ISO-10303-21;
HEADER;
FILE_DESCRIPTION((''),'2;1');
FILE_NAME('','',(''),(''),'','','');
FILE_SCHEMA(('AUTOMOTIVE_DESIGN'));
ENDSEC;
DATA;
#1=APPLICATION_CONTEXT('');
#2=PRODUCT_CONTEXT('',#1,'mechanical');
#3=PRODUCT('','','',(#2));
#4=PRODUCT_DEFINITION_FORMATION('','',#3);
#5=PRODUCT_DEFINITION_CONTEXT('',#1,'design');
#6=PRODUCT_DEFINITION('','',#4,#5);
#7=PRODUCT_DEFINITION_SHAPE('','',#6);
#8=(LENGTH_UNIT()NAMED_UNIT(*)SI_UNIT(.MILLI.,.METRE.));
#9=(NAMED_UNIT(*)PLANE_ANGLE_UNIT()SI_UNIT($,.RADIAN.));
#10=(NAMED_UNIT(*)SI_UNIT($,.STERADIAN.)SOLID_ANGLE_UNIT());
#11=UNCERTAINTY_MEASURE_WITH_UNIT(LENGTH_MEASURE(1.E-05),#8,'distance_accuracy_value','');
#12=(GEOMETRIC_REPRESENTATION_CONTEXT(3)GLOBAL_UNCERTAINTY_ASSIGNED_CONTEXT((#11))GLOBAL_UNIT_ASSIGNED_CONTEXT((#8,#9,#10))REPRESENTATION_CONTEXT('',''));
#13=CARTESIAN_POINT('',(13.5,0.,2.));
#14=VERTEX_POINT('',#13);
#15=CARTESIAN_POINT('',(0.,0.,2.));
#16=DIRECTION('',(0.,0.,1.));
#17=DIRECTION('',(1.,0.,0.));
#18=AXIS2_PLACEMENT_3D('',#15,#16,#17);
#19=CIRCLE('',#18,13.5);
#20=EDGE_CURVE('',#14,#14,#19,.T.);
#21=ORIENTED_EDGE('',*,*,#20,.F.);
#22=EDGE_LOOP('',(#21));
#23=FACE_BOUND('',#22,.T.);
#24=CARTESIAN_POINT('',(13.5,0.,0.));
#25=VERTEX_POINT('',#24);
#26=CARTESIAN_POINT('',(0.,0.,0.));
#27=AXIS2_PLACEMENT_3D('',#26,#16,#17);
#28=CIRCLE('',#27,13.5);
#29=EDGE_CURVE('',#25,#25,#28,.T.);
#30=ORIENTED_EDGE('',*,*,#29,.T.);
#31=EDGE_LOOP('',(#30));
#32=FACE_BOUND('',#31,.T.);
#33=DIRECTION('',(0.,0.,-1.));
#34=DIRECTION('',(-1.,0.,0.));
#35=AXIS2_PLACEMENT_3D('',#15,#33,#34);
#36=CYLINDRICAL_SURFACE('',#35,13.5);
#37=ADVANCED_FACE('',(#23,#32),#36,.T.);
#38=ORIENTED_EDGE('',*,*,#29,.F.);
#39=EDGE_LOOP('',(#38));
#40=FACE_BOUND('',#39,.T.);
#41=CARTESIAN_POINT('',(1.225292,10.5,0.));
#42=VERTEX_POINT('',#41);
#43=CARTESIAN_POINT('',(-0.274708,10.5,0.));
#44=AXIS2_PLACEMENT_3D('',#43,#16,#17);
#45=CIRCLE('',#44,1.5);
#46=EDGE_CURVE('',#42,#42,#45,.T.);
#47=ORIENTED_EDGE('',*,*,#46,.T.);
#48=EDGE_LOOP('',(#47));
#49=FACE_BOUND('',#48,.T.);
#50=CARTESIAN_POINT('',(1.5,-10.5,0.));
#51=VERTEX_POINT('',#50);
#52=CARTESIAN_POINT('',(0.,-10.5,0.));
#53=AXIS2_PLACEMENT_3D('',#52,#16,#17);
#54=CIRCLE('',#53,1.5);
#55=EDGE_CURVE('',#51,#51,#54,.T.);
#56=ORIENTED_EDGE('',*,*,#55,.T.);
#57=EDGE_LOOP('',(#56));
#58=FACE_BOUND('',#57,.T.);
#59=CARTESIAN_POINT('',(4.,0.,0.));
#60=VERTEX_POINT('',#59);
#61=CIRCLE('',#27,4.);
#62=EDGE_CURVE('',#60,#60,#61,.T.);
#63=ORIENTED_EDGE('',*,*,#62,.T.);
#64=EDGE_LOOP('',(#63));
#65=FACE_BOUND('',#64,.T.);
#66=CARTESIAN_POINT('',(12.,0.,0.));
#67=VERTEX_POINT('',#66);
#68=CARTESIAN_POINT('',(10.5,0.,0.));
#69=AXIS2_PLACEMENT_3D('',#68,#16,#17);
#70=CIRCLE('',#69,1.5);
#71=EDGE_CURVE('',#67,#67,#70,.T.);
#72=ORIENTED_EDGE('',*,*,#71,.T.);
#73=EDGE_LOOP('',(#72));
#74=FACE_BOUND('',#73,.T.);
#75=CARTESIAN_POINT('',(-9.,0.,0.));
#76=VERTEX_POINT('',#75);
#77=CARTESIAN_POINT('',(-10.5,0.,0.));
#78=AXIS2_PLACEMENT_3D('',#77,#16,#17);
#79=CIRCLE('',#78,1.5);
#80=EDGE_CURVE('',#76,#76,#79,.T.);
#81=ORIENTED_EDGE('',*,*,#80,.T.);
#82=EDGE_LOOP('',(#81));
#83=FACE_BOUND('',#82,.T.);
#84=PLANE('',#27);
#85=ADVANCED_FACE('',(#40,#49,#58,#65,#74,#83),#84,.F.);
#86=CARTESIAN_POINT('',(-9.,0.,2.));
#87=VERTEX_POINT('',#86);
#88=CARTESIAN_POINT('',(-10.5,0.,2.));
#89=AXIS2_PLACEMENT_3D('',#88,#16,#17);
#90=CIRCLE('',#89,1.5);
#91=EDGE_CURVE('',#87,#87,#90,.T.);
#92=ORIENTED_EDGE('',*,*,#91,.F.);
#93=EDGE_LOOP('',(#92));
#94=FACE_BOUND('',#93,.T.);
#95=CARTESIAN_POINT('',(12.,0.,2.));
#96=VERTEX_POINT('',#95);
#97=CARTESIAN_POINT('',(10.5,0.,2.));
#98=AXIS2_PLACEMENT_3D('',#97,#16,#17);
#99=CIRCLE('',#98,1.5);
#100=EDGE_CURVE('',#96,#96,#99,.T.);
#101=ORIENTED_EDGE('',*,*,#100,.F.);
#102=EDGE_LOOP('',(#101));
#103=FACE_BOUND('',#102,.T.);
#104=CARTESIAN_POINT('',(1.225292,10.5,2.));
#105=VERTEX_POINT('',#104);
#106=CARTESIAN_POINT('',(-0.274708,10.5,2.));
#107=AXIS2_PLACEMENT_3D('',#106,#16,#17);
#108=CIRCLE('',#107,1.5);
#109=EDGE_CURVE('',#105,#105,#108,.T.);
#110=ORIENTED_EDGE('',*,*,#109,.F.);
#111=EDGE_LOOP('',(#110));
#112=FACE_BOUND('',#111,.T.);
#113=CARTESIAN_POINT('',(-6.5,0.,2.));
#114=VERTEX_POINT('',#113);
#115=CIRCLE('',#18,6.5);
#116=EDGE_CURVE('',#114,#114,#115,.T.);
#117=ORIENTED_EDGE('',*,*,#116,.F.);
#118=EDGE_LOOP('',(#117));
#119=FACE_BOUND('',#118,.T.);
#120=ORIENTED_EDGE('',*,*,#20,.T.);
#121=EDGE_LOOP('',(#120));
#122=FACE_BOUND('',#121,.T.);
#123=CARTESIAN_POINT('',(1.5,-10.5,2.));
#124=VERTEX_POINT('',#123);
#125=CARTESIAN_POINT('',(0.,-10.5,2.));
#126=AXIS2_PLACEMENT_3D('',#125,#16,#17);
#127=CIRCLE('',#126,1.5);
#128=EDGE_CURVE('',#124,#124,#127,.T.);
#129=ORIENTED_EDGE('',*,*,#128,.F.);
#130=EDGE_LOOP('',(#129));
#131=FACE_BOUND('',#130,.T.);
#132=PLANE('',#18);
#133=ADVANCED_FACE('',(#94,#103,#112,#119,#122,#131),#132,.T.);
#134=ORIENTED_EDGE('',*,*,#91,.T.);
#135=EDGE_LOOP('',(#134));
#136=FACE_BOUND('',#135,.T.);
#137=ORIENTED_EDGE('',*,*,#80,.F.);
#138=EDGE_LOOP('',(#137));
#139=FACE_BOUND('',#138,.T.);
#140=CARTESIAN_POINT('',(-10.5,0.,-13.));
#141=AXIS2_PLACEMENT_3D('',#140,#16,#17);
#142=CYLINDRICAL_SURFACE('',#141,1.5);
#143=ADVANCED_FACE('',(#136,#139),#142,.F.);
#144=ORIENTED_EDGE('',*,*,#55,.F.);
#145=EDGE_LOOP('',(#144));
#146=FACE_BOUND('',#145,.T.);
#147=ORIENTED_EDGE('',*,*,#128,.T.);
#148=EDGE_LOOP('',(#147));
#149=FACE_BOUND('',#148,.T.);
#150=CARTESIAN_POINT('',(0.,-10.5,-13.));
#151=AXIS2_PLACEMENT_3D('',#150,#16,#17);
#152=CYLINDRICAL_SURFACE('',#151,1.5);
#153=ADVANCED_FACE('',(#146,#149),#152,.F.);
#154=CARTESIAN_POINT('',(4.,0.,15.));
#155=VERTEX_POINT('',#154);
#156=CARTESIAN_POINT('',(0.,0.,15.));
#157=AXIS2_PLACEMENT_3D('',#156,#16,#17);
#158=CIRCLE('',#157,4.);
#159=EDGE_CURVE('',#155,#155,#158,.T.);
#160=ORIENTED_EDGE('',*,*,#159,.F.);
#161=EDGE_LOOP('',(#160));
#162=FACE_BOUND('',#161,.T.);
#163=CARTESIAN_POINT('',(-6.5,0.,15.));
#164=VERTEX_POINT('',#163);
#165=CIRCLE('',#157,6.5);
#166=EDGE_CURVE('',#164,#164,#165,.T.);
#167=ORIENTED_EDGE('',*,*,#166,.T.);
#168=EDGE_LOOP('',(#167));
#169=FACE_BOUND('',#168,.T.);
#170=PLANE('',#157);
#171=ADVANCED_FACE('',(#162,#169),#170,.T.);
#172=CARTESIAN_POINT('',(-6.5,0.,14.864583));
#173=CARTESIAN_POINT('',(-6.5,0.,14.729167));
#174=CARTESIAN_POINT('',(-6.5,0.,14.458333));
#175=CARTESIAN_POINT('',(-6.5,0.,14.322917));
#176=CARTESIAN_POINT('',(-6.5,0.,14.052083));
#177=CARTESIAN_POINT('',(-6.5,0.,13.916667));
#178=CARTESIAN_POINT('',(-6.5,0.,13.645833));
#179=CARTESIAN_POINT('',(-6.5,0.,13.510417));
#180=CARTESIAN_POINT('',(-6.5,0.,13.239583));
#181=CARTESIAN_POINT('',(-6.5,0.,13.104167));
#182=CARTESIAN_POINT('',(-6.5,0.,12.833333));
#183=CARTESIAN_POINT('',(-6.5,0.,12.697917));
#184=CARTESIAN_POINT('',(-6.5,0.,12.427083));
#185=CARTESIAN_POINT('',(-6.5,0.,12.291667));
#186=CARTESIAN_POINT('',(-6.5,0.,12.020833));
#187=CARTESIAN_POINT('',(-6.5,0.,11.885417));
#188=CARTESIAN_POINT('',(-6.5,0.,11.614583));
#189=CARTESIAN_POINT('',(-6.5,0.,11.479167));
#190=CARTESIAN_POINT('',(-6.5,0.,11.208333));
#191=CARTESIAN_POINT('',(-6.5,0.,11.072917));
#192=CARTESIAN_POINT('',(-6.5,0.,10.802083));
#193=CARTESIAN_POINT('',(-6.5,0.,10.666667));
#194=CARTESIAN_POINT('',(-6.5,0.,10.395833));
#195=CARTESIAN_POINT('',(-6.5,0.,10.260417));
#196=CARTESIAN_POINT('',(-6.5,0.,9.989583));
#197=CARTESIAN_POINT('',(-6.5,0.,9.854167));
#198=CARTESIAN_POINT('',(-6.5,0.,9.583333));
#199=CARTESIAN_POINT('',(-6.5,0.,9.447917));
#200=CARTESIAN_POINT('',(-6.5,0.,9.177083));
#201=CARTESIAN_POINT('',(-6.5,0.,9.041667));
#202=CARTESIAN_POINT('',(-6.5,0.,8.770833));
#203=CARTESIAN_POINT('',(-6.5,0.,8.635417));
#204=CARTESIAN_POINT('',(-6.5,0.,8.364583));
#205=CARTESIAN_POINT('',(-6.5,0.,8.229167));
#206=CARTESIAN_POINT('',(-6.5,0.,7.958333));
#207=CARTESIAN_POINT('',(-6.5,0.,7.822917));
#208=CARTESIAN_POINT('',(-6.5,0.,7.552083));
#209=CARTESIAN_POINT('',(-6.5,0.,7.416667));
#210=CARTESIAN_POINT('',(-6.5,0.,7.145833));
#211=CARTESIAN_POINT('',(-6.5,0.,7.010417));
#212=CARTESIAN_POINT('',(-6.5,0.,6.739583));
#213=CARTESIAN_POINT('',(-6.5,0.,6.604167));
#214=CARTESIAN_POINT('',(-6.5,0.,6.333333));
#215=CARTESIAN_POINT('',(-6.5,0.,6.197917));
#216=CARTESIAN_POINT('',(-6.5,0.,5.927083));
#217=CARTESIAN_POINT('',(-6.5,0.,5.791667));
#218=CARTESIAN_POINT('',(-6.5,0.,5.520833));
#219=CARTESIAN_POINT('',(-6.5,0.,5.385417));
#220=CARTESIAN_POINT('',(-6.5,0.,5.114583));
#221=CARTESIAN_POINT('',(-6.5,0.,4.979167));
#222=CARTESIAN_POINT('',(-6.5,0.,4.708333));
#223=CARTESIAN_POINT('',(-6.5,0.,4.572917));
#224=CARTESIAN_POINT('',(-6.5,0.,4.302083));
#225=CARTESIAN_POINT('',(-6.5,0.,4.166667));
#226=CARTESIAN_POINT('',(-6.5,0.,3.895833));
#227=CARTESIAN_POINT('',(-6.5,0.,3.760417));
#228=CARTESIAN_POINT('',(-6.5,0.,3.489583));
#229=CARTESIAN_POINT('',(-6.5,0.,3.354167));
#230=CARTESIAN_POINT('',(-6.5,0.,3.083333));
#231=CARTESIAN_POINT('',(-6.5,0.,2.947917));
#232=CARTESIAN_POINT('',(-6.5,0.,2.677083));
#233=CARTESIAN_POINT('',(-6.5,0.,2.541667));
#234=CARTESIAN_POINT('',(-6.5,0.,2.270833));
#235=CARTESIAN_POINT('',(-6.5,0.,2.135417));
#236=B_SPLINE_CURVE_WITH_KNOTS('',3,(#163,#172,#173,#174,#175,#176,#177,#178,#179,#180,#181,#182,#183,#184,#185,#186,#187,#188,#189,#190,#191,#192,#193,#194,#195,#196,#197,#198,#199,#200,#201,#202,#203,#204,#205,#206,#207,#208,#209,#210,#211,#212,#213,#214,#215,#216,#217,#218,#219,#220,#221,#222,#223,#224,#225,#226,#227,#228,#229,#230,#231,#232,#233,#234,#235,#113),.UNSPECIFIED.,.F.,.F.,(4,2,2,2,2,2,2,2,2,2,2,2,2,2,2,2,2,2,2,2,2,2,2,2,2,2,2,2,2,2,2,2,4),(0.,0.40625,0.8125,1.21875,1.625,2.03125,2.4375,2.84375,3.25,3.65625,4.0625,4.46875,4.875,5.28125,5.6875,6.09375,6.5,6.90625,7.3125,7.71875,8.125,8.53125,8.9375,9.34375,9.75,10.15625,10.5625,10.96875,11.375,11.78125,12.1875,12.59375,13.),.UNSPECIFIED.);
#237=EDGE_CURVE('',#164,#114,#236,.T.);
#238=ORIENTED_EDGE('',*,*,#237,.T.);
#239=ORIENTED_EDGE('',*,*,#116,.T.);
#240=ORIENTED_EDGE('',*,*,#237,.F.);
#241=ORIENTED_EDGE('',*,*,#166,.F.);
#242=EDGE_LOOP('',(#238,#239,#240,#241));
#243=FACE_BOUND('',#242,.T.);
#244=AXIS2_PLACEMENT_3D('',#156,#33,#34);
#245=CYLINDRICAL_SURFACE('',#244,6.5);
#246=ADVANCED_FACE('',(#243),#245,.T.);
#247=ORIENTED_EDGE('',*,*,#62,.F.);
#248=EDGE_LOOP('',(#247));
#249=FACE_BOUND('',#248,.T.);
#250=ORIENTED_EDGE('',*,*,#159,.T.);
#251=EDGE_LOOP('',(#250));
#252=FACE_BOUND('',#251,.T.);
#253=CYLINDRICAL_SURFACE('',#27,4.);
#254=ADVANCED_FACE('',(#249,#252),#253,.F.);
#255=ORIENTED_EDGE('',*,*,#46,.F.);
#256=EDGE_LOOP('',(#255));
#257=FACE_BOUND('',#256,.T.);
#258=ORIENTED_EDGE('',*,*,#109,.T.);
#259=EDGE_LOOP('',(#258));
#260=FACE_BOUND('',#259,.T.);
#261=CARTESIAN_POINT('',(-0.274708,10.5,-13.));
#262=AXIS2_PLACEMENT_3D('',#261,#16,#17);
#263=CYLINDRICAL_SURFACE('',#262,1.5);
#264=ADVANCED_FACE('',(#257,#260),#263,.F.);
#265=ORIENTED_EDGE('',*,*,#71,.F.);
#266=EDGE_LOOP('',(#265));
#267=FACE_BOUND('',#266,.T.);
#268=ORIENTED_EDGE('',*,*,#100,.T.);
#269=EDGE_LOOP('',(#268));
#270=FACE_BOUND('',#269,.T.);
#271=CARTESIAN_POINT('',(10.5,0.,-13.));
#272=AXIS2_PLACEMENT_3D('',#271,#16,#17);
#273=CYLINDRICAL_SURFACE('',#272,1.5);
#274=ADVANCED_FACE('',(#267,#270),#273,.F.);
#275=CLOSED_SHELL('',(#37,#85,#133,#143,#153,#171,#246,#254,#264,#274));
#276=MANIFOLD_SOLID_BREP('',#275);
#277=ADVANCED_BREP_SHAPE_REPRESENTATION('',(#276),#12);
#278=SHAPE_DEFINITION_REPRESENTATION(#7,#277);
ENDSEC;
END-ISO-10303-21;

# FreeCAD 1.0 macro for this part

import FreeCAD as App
import Part
import Sketcher

doc = App.newDocument("Part")
params = doc.addObject("Spreadsheet::Sheet", "Params")
for row, (alias, value) in enumerate([
    ("sketch1_diameter", "27 mm"),
    ("pad1_length", "2 mm"),
    ("sketch2_diameter", "13 mm"),
    ("pad2_length", "13 mm"),
    ("sketch3_diameter", "8 mm"),
    ("pocket1_length", "15 mm"),
    ("sketch4_diameter", "3 mm"),
    ("pocket2_length", "15 mm"),
], start=1):
    params.set(f"A{row}", alias)
    params.set(f"B{row}", "=" + value)
    params.setAlias(f"B{row}", alias)

body = doc.addObject("PartDesign::Body", "Body")

# Sketch on XY plane
sketch1 = doc.addObject("Sketcher::SketchObject", "Sketch")
body.addObject(sketch1)
sketch1.AttachmentSupport = (doc.XY_Plane, [""])
sketch1.MapMode = "FlatFace"
sketch1.addGeometry(Part.Circle(App.Vector(0, 0, 0), App.Vector(0, 0, 1), 14), False)
sketch1.addConstraint(Sketcher.Constraint("Coincident", 0, 3, -1, 1))
sketch1.addConstraint(Sketcher.Constraint("Diameter", 0, 27.0))
sketch1.setExpression("Constraints[1]", "Params.sketch1_diameter")
pad1 = doc.addObject("PartDesign::Pad", "Pad")
body.addObject(pad1)
pad1.Profile = sketch1
pad1.setExpression("Length", "Params.pad1_length")

# Sketch on XY plane
sketch2 = doc.addObject("Sketcher::SketchObject", "Sketch001")
body.addObject(sketch2)
sketch2.AttachmentSupport = (doc.XY_Plane, [""])
sketch2.MapMode = "FlatFace"
sketch2.AttachmentOffset = App.Placement(App.Vector(0, 0, 2), App.Rotation())
sketch2.addGeometry(Part.Circle(App.Vector(0, 0, 0), App.Vector(0, 0, 1), 6), False)
sketch2.addConstraint(Sketcher.Constraint("Coincident", 0, 3, -1, 1))
sketch2.addConstraint(Sketcher.Constraint("Diameter", 0, 13.0))
sketch2.setExpression("Constraints[1]", "Params.sketch2_diameter")
pad2 = doc.addObject("PartDesign::Pad", "Pad001")
body.addObject(pad2)
pad2.Profile = sketch2
pad2.setExpression("Length", "Params.pad2_length")

# Sketch on XY plane
sketch3 = doc.addObject("Sketcher::SketchObject", "Sketch002")
body.addObject(sketch3)
sketch3.AttachmentSupport = (doc.XY_Plane, [""])
sketch3.MapMode = "FlatFace"
sketch3.AttachmentOffset = App.Placement(App.Vector(0, 0, 15), App.Rotation())
sketch3.addGeometry(Part.Circle(App.Vector(0, 0, 0), App.Vector(0, 0, 1), 4), False)
sketch3.addConstraint(Sketcher.Constraint("Coincident", 0, 3, -1, 1))
sketch3.addConstraint(Sketcher.Constraint("Diameter", 0, 8.0))
sketch3.setExpression("Constraints[1]", "Params.sketch3_diameter")
pocket1 = doc.addObject("PartDesign::Pocket", "Pocket")
body.addObject(pocket1)
pocket1.Profile = sketch3
pocket1.setExpression("Length", "Params.pocket1_length")

# Sketch on XY plane
sketch4 = doc.addObject("Sketcher::SketchObject", "Sketch003")
body.addObject(sketch4)
sketch4.AttachmentSupport = (doc.XY_Plane, [""])
sketch4.MapMode = "FlatFace"
sketch4.AttachmentOffset = App.Placement(App.Vector(0, 0, 2), App.Rotation())
sketch4.addGeometry(Part.Circle(App.Vector(-10.5, 0, 0), App.Vector(0, 0, 1), 1.5), False)
sketch4.addGeometry(Part.Circle(App.Vector(-0.3, 10.5, 0), App.Vector(0, 0, 1), 1.5), False)
sketch4.addGeometry(Part.Circle(App.Vector(10.5, 0, 0), App.Vector(0, 0, 1), 1.5), False)
sketch4.addGeometry(Part.Circle(App.Vector(0, -10.5, 0), App.Vector(0, 0, 1), 1.5), False)
sketch4.addConstraint(Sketcher.Constraint("Equal", 0, 1))
sketch4.addConstraint(Sketcher.Constraint("Equal", 1, 2))
sketch4.addConstraint(Sketcher.Constraint("Equal", 2, 3))
sketch4.addConstraint(Sketcher.Constraint("Symmetric", 0, 3, 2, 3, -1, 1))
sketch4.addConstraint(Sketcher.Constraint("PointOnObject", 0, 3, -1))
sketch4.addConstraint(Sketcher.Constraint("PointOnObject", 3, 3, -2))
sketch4.addConstraint(Sketcher.Constraint("Diameter", 0, 3.0))
sketch4.addConstraint(Sketcher.Constraint("DistanceX", 0, 3, 2, 3, 21.0))
sketch4.addConstraint(Sketcher.Constraint("DistanceY", 3, 3, 1, 3, 21.0))
sketch4.addConstraint(Sketcher.Constraint("DistanceY", -1, 1, 1, 3, 10.5))
sketch4.addConstraint(Sketcher.Constraint("DistanceX", 1, 3, -1, 1, 0.274708))
sketch4.setExpression("Constraints[6]", "Params.sketch4_diameter")
pocket2 = doc.addObject("PartDesign::Pocket", "Pocket001")
body.addObject(pocket2)
pocket2.Profile = sketch4
pocket2.setExpression("Length", "Params.pocket2_length")

doc.recompute()
